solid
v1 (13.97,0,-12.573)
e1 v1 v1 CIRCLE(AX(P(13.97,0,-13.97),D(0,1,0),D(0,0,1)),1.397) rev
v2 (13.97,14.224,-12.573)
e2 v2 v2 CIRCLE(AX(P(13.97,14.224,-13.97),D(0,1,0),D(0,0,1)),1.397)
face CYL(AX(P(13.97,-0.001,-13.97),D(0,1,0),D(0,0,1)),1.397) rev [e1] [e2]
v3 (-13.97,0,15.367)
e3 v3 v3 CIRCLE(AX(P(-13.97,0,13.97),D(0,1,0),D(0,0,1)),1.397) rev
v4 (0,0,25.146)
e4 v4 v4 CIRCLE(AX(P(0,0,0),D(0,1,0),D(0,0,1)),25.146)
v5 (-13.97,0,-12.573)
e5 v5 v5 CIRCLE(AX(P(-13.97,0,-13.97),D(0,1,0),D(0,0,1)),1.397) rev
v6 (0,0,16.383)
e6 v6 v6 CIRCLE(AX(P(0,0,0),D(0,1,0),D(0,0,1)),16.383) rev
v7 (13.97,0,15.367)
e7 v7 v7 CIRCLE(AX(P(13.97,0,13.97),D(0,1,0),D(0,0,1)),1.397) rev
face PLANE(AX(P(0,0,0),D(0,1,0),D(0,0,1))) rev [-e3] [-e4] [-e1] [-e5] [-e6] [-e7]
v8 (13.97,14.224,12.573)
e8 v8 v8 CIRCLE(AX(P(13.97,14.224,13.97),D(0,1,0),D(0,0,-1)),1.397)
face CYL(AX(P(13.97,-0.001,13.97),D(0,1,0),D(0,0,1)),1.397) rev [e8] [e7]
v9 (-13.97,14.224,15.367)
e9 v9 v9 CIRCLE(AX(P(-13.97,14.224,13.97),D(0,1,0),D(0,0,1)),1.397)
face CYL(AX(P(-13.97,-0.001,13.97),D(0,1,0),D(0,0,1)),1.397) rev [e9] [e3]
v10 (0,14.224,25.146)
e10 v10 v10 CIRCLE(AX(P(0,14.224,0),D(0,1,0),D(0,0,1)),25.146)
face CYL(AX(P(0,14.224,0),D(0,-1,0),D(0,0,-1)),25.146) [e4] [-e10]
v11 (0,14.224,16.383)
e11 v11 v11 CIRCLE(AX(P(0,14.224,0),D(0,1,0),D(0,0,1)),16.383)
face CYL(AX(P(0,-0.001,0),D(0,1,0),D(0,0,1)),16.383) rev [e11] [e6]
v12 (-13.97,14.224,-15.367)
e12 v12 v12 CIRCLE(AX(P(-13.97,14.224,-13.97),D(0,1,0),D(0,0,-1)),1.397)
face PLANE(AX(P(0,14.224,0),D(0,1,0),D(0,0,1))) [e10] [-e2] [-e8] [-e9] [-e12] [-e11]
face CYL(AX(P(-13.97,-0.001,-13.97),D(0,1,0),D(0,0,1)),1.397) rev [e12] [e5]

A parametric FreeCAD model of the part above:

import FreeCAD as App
import Part
import Sketcher
from FreeCAD import Vector
Q = App.Units.Quantity

doc = App.newDocument("Part")
params = doc.addObject("Spreadsheet::Sheet", "Params")
for row, (alias, value) in enumerate([
    ("sketch1_diameter", "1.98 in"),
    ("pad1_length", "0.56 in"),
    ("sketch2_diameter", "0.11 in"),
    ("sketch3_diameter", "0.11 in"),
    ("sketch4_diameter", "0.11 in"),
    ("sketch5_diameter", "0.11 in"),
    ("sketch6_diameter", "1.29 in"),
], start=1):
    params.set(f"A{row}", alias)
    params.set(f"B{row}", "=" + value)
    params.setAlias(f"B{row}", alias)

body = doc.addObject("PartDesign::Body", "Body")

# Sketch on XZ plane
sketch1 = body.newObject("Sketcher::SketchObject", "Sketch")
sketch1.AttachmentSupport = (doc.getObject("XZ_Plane"), [""])
sketch1.MapMode = "FlatFace"
sketch1.addGeometry(Part.Circle(Vector(0, 0, 0), Vector(0, 0, 1), 25), False)
sketch1.addConstraint(Sketcher.Constraint("Coincident", 0, 3, -1, 1))
sketch1.addConstraint(Sketcher.Constraint("Diameter", 0, Q("1.98 in")))
sketch1.setExpression("Constraints[1]", "Params.sketch1_diameter")
pad1 = body.newObject("PartDesign::Pad", "Pad")
pad1.Profile = sketch1
pad1.setExpression("Length", "Params.pad1_length")
pad1.Reversed = True

# Sketch on XZ plane
sketch2 = body.newObject("Sketcher::SketchObject", "Sketch001")
sketch2.AttachmentSupport = (doc.getObject("XZ_Plane"), [""])
sketch2.MapMode = "FlatFace"
sketch2.AttachmentOffset = App.Placement(Vector(0, 0, -0.56 * 25.4), App.Rotation())
sketch2.addGeometry(Part.Circle(Vector(14, -14, 0), Vector(0, 0, 1), 1.4), False)
sketch2.addConstraint(Sketcher.Constraint("Diameter", 0, Q("0.11 in")))
sketch2.addConstraint(Sketcher.Constraint("DistanceX", -1, 1, 0, 3, Q("0.55 in")))
sketch2.addConstraint(Sketcher.Constraint("DistanceY", 0, 3, -1, 1, Q("0.55 in")))
sketch2.setExpression("Constraints[0]", "Params.sketch2_diameter")
pocket1 = body.newObject("PartDesign::Pocket", "Pocket")
pocket1.Profile = sketch2
pocket1.Type = "UpToFirst"
pocket1.Reversed = True

# Sketch on XZ plane
sketch3 = body.newObject("Sketcher::SketchObject", "Sketch002")
sketch3.AttachmentSupport = (doc.getObject("XZ_Plane"), [""])
sketch3.MapMode = "FlatFace"
sketch3.AttachmentOffset = App.Placement(Vector(0, 0, -0.56 * 25.4), App.Rotation())
sketch3.addGeometry(Part.Circle(Vector(14, 14, 0), Vector(0, 0, 1), 1.4), False)
sketch3.addConstraint(Sketcher.Constraint("Diameter", 0, Q("0.11 in")))
sketch3.addConstraint(Sketcher.Constraint("DistanceX", -1, 1, 0, 3, Q("0.55 in")))
sketch3.addConstraint(Sketcher.Constraint("DistanceY", -1, 1, 0, 3, Q("0.55 in")))
sketch3.setExpression("Constraints[0]", "Params.sketch3_diameter")
pocket2 = body.newObject("PartDesign::Pocket", "Pocket001")
pocket2.Profile = sketch3
pocket2.Type = "UpToFirst"
pocket2.Reversed = True

# Sketch on XZ plane
sketch4 = body.newObject("Sketcher::SketchObject", "Sketch003")
sketch4.AttachmentSupport = (doc.getObject("XZ_Plane"), [""])
sketch4.MapMode = "FlatFace"
sketch4.AttachmentOffset = App.Placement(Vector(0, 0, -0.56 * 25.4), App.Rotation())
sketch4.addGeometry(Part.Circle(Vector(-14, 14, 0), Vector(0, 0, 1), 1.4), False)
sketch4.addConstraint(Sketcher.Constraint("Diameter", 0, Q("0.11 in")))
sketch4.addConstraint(Sketcher.Constraint("DistanceX", 0, 3, -1, 1, Q("0.55 in")))
sketch4.addConstraint(Sketcher.Constraint("DistanceY", -1, 1, 0, 3, Q("0.55 in")))
sketch4.setExpression("Constraints[0]", "Params.sketch4_diameter")
pocket3 = body.newObject("PartDesign::Pocket", "Pocket002")
pocket3.Profile = sketch4
pocket3.Type = "UpToFirst"
pocket3.Reversed = True

# Sketch on XZ plane
sketch5 = body.newObject("Sketcher::SketchObject", "Sketch004")
sketch5.AttachmentSupport = (doc.getObject("XZ_Plane"), [""])
sketch5.MapMode = "FlatFace"
sketch5.AttachmentOffset = App.Placement(Vector(0, 0, -0.56 * 25.4), App.Rotation())
sketch5.addGeometry(Part.Circle(Vector(-14, -14, 0), Vector(0, 0, 1), 1.4), False)
sketch5.addConstraint(Sketcher.Constraint("Diameter", 0, Q("0.11 in")))
sketch5.addConstraint(Sketcher.Constraint("DistanceX", 0, 3, -1, 1, Q("0.55 in")))
sketch5.addConstraint(Sketcher.Constraint("DistanceY", 0, 3, -1, 1, Q("0.55 in")))
sketch5.setExpression("Constraints[0]", "Params.sketch5_diameter")
pocket4 = body.newObject("PartDesign::Pocket", "Pocket003")
pocket4.Profile = sketch5
pocket4.Type = "UpToFirst"
pocket4.Reversed = True

# Sketch on XZ plane
sketch6 = body.newObject("Sketcher::SketchObject", "Sketch005")
sketch6.AttachmentSupport = (doc.getObject("XZ_Plane"), [""])
sketch6.MapMode = "FlatFace"
sketch6.AttachmentOffset = App.Placement(Vector(0, 0, -0.56 * 25.4), App.Rotation())
sketch6.addGeometry(Part.Circle(Vector(0, 0, 0), Vector(0, 0, 1), 16), False)
sketch6.addConstraint(Sketcher.Constraint("Coincident", 0, 3, -1, 1))
sketch6.addConstraint(Sketcher.Constraint("Diameter", 0, Q("1.29 in")))
sketch6.setExpression("Constraints[1]", "Params.sketch6_diameter")
pocket5 = body.newObject("PartDesign::Pocket", "Pocket004")
pocket5.Profile = sketch6
pocket5.Type = "UpToFirst"
pocket5.Reversed = True

doc.recompute()
